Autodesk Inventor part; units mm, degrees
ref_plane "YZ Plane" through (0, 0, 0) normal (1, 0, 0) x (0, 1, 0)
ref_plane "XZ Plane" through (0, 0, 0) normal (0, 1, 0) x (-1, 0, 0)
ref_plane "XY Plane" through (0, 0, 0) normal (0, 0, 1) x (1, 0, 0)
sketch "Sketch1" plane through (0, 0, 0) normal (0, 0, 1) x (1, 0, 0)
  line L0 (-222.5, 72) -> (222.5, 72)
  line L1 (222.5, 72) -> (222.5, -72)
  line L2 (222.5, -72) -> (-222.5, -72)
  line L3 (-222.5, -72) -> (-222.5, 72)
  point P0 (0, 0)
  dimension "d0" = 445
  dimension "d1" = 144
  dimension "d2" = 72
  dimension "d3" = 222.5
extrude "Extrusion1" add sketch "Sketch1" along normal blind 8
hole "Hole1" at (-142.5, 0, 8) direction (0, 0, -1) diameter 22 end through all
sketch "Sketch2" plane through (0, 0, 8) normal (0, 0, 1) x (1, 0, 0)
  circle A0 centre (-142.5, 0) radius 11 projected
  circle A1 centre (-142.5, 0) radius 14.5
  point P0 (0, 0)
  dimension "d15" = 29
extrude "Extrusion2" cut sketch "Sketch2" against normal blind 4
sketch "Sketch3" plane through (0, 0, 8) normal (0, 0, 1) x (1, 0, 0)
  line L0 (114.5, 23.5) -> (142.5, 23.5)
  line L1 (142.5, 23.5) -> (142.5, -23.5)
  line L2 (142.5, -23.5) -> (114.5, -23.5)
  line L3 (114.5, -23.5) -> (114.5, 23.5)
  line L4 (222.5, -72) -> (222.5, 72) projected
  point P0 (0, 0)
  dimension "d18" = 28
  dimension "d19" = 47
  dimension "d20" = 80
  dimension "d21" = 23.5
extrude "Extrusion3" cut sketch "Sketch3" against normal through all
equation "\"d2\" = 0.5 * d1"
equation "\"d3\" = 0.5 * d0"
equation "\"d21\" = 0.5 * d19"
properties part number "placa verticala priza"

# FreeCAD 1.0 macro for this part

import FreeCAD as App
import Part
import Sketcher
Q = App.Units.Quantity

doc = App.newDocument("Part")
body = doc.addObject("PartDesign::Body", "Body")

# Sketch on XY plane
sketch1 = body.newObject("Sketcher::SketchObject", "Sketch")
sketch1.AttachmentSupport = (doc.getObject("XY_Plane"), [""])
sketch1.MapMode = "FlatFace"
sketch1.addGeometry(Part.LineSegment(App.Vector(222, 72, 0), App.Vector(-222, 72, 0)), False)
sketch1.addGeometry(Part.LineSegment(App.Vector(-222, 72, 0), App.Vector(-222, -72, 0)), False)
sketch1.addGeometry(Part.LineSegment(App.Vector(-222, -72, 0), App.Vector(222, -72, 0)), False)
sketch1.addGeometry(Part.LineSegment(App.Vector(222, -72, 0), App.Vector(222, 72, 0)), False)
sketch1.addConstraint(Sketcher.Constraint("Coincident", 0, 2, 1, 1))
sketch1.addConstraint(Sketcher.Constraint("Coincident", 1, 2, 2, 1))
sketch1.addConstraint(Sketcher.Constraint("Coincident", 2, 2, 3, 1))
sketch1.addConstraint(Sketcher.Constraint("Coincident", 3, 2, 0, 1))
sketch1.addConstraint(Sketcher.Constraint("Horizontal", 0))
sketch1.addConstraint(Sketcher.Constraint("Vertical", 1))
sketch1.addConstraint(Sketcher.Constraint("Horizontal", 2))
sketch1.addConstraint(Sketcher.Constraint("Vertical", 3))
sketch1.addConstraint(Sketcher.Constraint("Symmetric", 0, 2, 2, 2, -1, 1))
sketch1.addConstraint(Sketcher.Constraint("DistanceX", 0, 2, 0, 1, Q("445 mm")))
sketch1.addConstraint(Sketcher.Constraint("DistanceY", 1, 2, 1, 1, Q("144 mm")))
pad1 = body.newObject("PartDesign::Pad", "Pad")
pad1.Profile = sketch1
pad1.Length = 8

# Sketch on XY plane
sketch2 = body.newObject("Sketcher::SketchObject", "Sketch001")
sketch2.AttachmentSupport = (doc.getObject("XY_Plane"), [""])
sketch2.MapMode = "FlatFace"
sketch2.AttachmentOffset = App.Placement(App.Vector(0, 0, 8), App.Rotation())
sketch2.addGeometry(Part.Circle(App.Vector(-142, 0, 0), App.Vector(0, 0, 1), 11), False)
sketch2.addConstraint(Sketcher.Constraint("PointOnObject", 0, 3, -1))
sketch2.addConstraint(Sketcher.Constraint("Diameter", 0, Q("22 mm")))
sketch2.addConstraint(Sketcher.Constraint("DistanceX", 0, 3, -1, 1, Q("142.5 mm")))
doc.recompute()
hole = body.newObject("PartDesign::Hole", "Hole")
hole.Profile = sketch2
hole.ThreadType = "None"
hole.Diameter = 22
hole.DepthType = "ThroughAll"

# Sketch on XY plane
sketch3 = body.newObject("Sketcher::SketchObject", "Sketch002")
sketch3.AttachmentSupport = (doc.getObject("XY_Plane"), [""])
sketch3.MapMode = "FlatFace"
sketch3.AttachmentOffset = App.Placement(App.Vector(0, 0, 8), App.Rotation())
sketch3.addGeometry(Part.Circle(App.Vector(-142, 0, 0), App.Vector(0, 0, 1), 14), False)
sketch3.addGeometry(Part.Circle(App.Vector(-142, 0, 0), App.Vector(0, 0, 1), 11), False)
sketch3.addConstraint(Sketcher.Constraint("Coincident", 1, 3, 0, 3))
sketch3.addConstraint(Sketcher.Constraint("PointOnObject", 0, 3, -1))
sketch3.addConstraint(Sketcher.Constraint("Diameter", 0, Q("29 mm")))
sketch3.addConstraint(Sketcher.Constraint("Diameter", 1, Q("22 mm")))
sketch3.addConstraint(Sketcher.Constraint("DistanceX", 0, 3, -1, 1, Q("142.5 mm")))
pocket1 = body.newObject("PartDesign::Pocket", "Pocket")
pocket1.Profile = sketch3
pocket1.Length = 4

# Sketch on XY plane
sketch4 = body.newObject("Sketcher::SketchObject", "Sketch003")
sketch4.AttachmentSupport = (doc.getObject("XY_Plane"), [""])
sketch4.MapMode = "FlatFace"
sketch4.AttachmentOffset = App.Placement(App.Vector(0, 0, 8), App.Rotation())
sketch4.addGeometry(Part.LineSegment(App.Vector(142, 24, 0), App.Vector(114, 24, 0)), False)
sketch4.addGeometry(Part.LineSegment(App.Vector(114, 24, 0), App.Vector(114, -24, 0)), False)
sketch4.addGeometry(Part.LineSegment(App.Vector(114, -24, 0), App.Vector(142, -24, 0)), False)
sketch4.addGeometry(Part.LineSegment(App.Vector(142, -24, 0), App.Vector(142, 24, 0)), False)
sketch4.addConstraint(Sketcher.Constraint("Coincident", 0, 2, 1, 1))
sketch4.addConstraint(Sketcher.Constraint("Coincident", 1, 2, 2, 1))
sketch4.addConstraint(Sketcher.Constraint("Coincident", 2, 2, 3, 1))
sketch4.addConstraint(Sketcher.Constraint("Coincident", 3, 2, 0, 1))
sketch4.addConstraint(Sketcher.Constraint("Horizontal", 0))
sketch4.addConstraint(Sketcher.Constraint("Vertical", 1))
sketch4.addConstraint(Sketcher.Constraint("Horizontal", 2))
sketch4.addConstraint(Sketcher.Constraint("Vertical", 3))
sketch4.addConstraint(Sketcher.Constraint("DistanceX", 0, 2, 0, 1, Q("28 mm")))
sketch4.addConstraint(Sketcher.Constraint("DistanceY", 1, 2, 1, 1, Q("47 mm")))
sketch4.addConstraint(Sketcher.Constraint("DistanceY", -1, 1, 0, 2, Q("23.5 mm")))
sketch4.addConstraint(Sketcher.Constraint("DistanceX", -1, 1, 0, 2, Q("114.5 mm")))
pocket2 = body.newObject("PartDesign::Pocket", "Pocket001")
pocket2.Profile = sketch4
pocket2.Type = "ThroughAll"

doc.recompute()
